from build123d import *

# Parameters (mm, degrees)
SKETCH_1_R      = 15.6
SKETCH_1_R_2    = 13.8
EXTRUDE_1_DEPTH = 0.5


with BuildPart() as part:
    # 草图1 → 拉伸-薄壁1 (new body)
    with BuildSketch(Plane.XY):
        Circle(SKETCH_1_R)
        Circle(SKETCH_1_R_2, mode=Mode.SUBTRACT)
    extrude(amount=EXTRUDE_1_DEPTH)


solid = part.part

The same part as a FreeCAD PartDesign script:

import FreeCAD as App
import Part
import Sketcher

doc = App.newDocument("Part")
body = doc.addObject("PartDesign::Body", "Body")

sketch1 = body.newObject("Sketcher::SketchObject", "Sketch")
sketch1.AttachmentSupport = (doc.getObject("XY_Plane"), [""])
sketch1.MapMode = "FlatFace"
sketch1.addGeometry([
    Part.Circle(App.Vector(0, 0, 0), App.Vector(0, 0, 1), 15.6),
    Part.Circle(App.Vector(0, 0, 0), App.Vector(0, 0, 1), 13.8),
], False)
sketch1.addConstraint([
    Sketcher.Constraint("Coincident", 0, 3, -1, 1),
    Sketcher.Constraint("Coincident", 1, 3, -1, 1),
    Sketcher.Constraint("Diameter", 0, 31.2),
    Sketcher.Constraint("Diameter", 1, 27.6),
])
pad1 = body.newObject("PartDesign::Pad", "Pad")
pad1.Profile = sketch1
pad1.Length = 0.5

doc.recompute()
